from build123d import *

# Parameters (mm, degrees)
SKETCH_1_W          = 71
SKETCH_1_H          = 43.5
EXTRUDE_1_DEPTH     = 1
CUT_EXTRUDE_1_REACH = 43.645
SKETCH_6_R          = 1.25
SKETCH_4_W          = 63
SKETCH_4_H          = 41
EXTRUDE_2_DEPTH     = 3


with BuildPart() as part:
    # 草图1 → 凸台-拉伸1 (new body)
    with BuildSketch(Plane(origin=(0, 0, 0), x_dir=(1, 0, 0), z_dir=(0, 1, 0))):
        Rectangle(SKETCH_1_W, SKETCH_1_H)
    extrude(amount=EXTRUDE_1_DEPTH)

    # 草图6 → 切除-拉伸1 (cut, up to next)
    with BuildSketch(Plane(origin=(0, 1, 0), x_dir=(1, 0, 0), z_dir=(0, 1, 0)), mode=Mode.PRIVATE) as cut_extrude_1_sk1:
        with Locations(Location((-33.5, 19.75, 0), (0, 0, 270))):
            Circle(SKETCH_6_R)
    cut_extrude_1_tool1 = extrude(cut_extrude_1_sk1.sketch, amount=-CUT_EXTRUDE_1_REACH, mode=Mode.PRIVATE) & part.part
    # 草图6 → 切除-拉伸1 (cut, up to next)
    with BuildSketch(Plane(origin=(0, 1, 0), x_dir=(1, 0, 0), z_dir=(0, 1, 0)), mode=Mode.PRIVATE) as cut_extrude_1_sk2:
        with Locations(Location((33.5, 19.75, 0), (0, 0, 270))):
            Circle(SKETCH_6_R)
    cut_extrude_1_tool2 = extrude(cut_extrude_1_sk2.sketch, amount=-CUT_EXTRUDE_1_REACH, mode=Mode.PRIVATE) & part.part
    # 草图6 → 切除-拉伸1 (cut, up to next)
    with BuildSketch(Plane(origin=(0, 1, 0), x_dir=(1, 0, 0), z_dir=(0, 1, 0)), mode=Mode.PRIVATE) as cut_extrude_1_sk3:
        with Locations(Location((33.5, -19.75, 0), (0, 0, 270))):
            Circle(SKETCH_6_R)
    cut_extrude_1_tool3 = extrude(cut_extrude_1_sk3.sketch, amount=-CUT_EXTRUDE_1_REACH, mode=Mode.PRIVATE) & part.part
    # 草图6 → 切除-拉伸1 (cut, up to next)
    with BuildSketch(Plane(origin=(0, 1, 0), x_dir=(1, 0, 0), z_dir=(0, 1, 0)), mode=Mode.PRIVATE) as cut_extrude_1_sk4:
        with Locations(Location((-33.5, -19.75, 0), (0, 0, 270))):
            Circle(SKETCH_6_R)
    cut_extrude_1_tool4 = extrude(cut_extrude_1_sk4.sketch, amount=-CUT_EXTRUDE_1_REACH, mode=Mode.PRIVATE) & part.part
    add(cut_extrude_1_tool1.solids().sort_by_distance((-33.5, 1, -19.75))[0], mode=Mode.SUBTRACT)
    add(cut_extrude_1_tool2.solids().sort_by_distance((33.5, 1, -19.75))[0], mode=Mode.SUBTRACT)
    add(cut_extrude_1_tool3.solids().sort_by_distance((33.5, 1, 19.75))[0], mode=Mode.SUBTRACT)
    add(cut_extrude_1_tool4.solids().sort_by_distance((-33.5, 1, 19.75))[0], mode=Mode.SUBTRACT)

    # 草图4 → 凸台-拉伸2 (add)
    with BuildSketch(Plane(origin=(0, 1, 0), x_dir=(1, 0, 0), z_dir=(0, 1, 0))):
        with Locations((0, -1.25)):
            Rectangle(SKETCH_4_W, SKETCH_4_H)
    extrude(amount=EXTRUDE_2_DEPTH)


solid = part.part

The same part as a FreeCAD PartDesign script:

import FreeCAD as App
import Part
import Sketcher
from FreeCAD import Vector
Q = App.Units.Quantity


def add_polygon(sketch, points):
    """Adds a closed chain of lines whose ends are joined by coincident constraints."""
    first, n = sketch.GeometryCount, len(points)
    for a, b in zip(points, points[1:] + points[:1]):
        sketch.addGeometry(Part.LineSegment(App.Vector(*a, 0), App.Vector(*b, 0)), False)
    for i in range(n):
        sketch.addConstraint(Sketcher.Constraint("Coincident", first + i, 2, first + (i + 1) % n, 1))

doc = App.newDocument("Part")
body = doc.addObject("PartDesign::Body", "Body")

# Sketch on XZ plane
sketch1 = body.newObject("Sketcher::SketchObject", "Sketch")
sketch1.AttachmentSupport = (doc.getObject("XZ_Plane"), [""])
sketch1.MapMode = "FlatFace"
add_polygon(sketch1, [(-35.5, -21.75), (-35.5, 21.75), (35.5, 21.75), (35.5, -21.75)])  # lines 0-3
sketch1.addConstraint(Sketcher.Constraint("Vertical", 0))
sketch1.addConstraint(Sketcher.Constraint("Horizontal", 1))
sketch1.addConstraint(Sketcher.Constraint("Vertical", 2))
sketch1.addConstraint(Sketcher.Constraint("Horizontal", 3))
sketch1.addConstraint(Sketcher.Constraint("Symmetric", 0, 2, 2, 2, -1, 1))
sketch1.addConstraint(Sketcher.Constraint("DistanceX", 1, 1, 1, 2, Q("71 mm")))
sketch1.addConstraint(Sketcher.Constraint("DistanceY", 0, 1, 0, 2, Q("43.5 mm")))
pad1 = body.newObject("PartDesign::Pad", "Pad")
pad1.Profile = sketch1
pad1.Length = 1
pad1.Reversed = True

# Sketch on XZ plane
sketch2 = body.newObject("Sketcher::SketchObject", "Sketch001")
sketch2.AttachmentSupport = (doc.getObject("XZ_Plane"), [""])
sketch2.MapMode = "FlatFace"
sketch2.AttachmentOffset = App.Placement(Vector(0, 0, -1), App.Rotation())
sketch2.addGeometry(Part.Circle(Vector(-33.5, -19.75, 0), Vector(0, 0, 1), 1.25), False)
sketch2.addConstraint(Sketcher.Constraint("Diameter", 0, Q("2.5 mm")))
sketch2.addConstraint(Sketcher.Constraint("DistanceX", 0, 3, -1, 1, Q("33.5 mm")))
sketch2.addConstraint(Sketcher.Constraint("DistanceY", 0, 3, -1, 1, Q("19.75 mm")))
pocket1 = body.newObject("PartDesign::Pocket", "Pocket")
pocket1.Profile = sketch2
pocket1.Type = "UpToFirst"
pocket1.Reversed = True

# Sketch on XZ plane
sketch3 = body.newObject("Sketcher::SketchObject", "Sketch002")
sketch3.AttachmentSupport = (doc.getObject("XZ_Plane"), [""])
sketch3.MapMode = "FlatFace"
sketch3.AttachmentOffset = App.Placement(Vector(0, 0, -1), App.Rotation())
sketch3.addGeometry(Part.Circle(Vector(33.5, -19.75, 0), Vector(0, 0, 1), 1.25), False)
sketch3.addConstraint(Sketcher.Constraint("Diameter", 0, Q("2.5 mm")))
sketch3.addConstraint(Sketcher.Constraint("DistanceX", -1, 1, 0, 3, Q("33.5 mm")))
sketch3.addConstraint(Sketcher.Constraint("DistanceY", 0, 3, -1, 1, Q("19.75 mm")))
pocket2 = body.newObject("PartDesign::Pocket", "Pocket001")
pocket2.Profile = sketch3
pocket2.Type = "UpToFirst"
pocket2.Reversed = True

# Sketch on XZ plane
sketch4 = body.newObject("Sketcher::SketchObject", "Sketch003")
sketch4.AttachmentSupport = (doc.getObject("XZ_Plane"), [""])
sketch4.MapMode = "FlatFace"
sketch4.AttachmentOffset = App.Placement(Vector(0, 0, -1), App.Rotation())
sketch4.addGeometry(Part.Circle(Vector(33.5, 19.75, 0), Vector(0, 0, 1), 1.25), False)
sketch4.addConstraint(Sketcher.Constraint("Diameter", 0, Q("2.5 mm")))
sketch4.addConstraint(Sketcher.Constraint("DistanceX", -1, 1, 0, 3, Q("33.5 mm")))
sketch4.addConstraint(Sketcher.Constraint("DistanceY", -1, 1, 0, 3, Q("19.75 mm")))
pocket3 = body.newObject("PartDesign::Pocket", "Pocket002")
pocket3.Profile = sketch4
pocket3.Type = "UpToFirst"
pocket3.Reversed = True

# Sketch on XZ plane
sketch5 = body.newObject("Sketcher::SketchObject", "Sketch004")
sketch5.AttachmentSupport = (doc.getObject("XZ_Plane"), [""])
sketch5.MapMode = "FlatFace"
sketch5.AttachmentOffset = App.Placement(Vector(0, 0, -1), App.Rotation())
sketch5.addGeometry(Part.Circle(Vector(-33.5, 19.75, 0), Vector(0, 0, 1), 1.25), False)
sketch5.addConstraint(Sketcher.Constraint("Diameter", 0, Q("2.5 mm")))
sketch5.addConstraint(Sketcher.Constraint("DistanceX", 0, 3, -1, 1, Q("33.5 mm")))
sketch5.addConstraint(Sketcher.Constraint("DistanceY", -1, 1, 0, 3, Q("19.75 mm")))
pocket4 = body.newObject("PartDesign::Pocket", "Pocket003")
pocket4.Profile = sketch5
pocket4.Type = "UpToFirst"
pocket4.Reversed = True

# Sketch on XZ plane
sketch6 = body.newObject("Sketcher::SketchObject", "Sketch005")
sketch6.AttachmentSupport = (doc.getObject("XZ_Plane"), [""])
sketch6.MapMode = "FlatFace"
sketch6.AttachmentOffset = App.Placement(Vector(0, 0, -1), App.Rotation())
add_polygon(sketch6, [(-31.5, -19.25), (-31.5, 21.75), (31.5, 21.75), (31.5, -19.25)])  # lines 0-3
sketch6.addConstraint(Sketcher.Constraint("Vertical", 0))
sketch6.addConstraint(Sketcher.Constraint("Horizontal", 1))
sketch6.addConstraint(Sketcher.Constraint("Vertical", 2))
sketch6.addConstraint(Sketcher.Constraint("Horizontal", 3))
sketch6.addConstraint(Sketcher.Constraint("DistanceX", 1, 1, 1, 2, Q("63 mm")))
sketch6.addConstraint(Sketcher.Constraint("DistanceY", 0, 1, 0, 2, Q("41 mm")))
sketch6.addConstraint(Sketcher.Constraint("DistanceX", 0, 2, -1, 1, Q("31.5 mm")))
sketch6.addConstraint(Sketcher.Constraint("DistanceY", -1, 1, 0, 2, Q("21.75 mm")))
pad2 = body.newObject("PartDesign::Pad", "Pad001")
pad2.Profile = sketch6
pad2.Length = 3
pad2.Reversed = True

doc.recompute()
